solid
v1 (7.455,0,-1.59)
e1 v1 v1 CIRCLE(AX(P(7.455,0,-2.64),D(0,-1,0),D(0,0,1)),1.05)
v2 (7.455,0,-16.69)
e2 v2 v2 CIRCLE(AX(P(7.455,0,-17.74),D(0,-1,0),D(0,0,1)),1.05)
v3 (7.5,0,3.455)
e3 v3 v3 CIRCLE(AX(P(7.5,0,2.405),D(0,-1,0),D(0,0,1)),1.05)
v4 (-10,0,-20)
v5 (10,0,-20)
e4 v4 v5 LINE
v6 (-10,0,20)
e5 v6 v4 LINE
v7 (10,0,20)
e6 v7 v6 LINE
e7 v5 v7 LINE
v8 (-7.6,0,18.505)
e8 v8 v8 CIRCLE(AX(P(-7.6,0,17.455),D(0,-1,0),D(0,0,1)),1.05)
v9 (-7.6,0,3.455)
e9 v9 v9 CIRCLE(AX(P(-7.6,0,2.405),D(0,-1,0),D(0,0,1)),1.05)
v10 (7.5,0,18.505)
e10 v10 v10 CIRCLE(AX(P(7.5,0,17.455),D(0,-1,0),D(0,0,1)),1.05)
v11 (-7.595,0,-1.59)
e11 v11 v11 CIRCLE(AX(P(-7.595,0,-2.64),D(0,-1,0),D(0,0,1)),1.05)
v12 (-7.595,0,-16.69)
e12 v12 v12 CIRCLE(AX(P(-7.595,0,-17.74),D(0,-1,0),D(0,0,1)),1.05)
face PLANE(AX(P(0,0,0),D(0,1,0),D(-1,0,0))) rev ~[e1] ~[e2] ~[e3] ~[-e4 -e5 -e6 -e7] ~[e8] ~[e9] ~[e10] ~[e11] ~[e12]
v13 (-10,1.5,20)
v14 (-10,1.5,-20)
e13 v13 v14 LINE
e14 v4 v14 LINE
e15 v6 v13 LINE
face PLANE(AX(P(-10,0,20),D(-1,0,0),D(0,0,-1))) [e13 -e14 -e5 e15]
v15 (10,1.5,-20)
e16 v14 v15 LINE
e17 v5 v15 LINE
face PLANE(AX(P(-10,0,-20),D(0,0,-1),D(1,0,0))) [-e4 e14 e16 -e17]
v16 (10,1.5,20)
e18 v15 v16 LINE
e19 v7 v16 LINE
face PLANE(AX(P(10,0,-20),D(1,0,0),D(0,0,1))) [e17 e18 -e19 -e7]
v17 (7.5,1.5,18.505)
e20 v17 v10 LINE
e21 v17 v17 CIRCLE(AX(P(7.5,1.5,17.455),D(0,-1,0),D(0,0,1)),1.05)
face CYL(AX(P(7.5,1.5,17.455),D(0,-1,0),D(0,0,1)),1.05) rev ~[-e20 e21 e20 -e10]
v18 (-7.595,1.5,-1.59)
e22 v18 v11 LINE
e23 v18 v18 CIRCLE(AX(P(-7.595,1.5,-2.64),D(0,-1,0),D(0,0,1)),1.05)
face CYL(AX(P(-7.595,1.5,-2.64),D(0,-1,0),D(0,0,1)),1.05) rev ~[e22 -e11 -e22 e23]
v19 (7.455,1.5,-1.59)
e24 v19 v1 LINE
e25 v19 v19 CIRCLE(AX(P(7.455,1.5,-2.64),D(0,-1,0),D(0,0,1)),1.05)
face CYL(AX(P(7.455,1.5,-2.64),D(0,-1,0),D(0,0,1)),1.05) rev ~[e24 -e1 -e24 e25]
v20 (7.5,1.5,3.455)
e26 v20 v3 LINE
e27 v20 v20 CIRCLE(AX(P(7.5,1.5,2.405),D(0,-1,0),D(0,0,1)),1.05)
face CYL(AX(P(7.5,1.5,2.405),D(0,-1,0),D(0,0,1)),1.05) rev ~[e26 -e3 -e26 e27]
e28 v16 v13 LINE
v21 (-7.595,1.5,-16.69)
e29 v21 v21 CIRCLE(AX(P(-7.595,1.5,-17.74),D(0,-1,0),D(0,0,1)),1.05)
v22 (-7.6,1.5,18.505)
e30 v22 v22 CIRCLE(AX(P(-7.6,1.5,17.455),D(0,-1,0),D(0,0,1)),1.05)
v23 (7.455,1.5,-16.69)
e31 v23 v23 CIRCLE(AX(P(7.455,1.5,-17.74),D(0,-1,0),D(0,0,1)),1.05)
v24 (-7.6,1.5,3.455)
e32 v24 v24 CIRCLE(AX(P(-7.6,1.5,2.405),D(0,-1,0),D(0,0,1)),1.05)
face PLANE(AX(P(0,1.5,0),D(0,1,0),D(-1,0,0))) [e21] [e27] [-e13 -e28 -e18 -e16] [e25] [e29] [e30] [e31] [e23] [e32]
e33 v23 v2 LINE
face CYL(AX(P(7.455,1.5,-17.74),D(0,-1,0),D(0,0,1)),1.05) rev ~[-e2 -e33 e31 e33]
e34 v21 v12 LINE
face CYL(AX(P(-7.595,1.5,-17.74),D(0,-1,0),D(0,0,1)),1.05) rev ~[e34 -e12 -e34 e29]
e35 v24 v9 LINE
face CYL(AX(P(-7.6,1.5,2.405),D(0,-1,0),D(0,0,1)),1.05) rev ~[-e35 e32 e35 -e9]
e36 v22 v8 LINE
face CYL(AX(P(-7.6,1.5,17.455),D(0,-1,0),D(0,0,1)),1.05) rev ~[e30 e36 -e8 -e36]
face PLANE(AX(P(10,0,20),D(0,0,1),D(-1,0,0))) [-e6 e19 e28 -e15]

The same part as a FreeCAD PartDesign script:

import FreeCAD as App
import Part
import Sketcher
Q = App.Units.Quantity


def add_polygon(sketch, points):
    """Adds a closed chain of lines whose ends are joined by coincident constraints."""
    first, n = sketch.GeometryCount, len(points)
    for a, b in zip(points, points[1:] + points[:1]):
        sketch.addGeometry(Part.LineSegment(App.Vector(*a, 0), App.Vector(*b, 0)), False)
    for i in range(n):
        sketch.addConstraint(Sketcher.Constraint("Coincident", first + i, 2, first + (i + 1) % n, 1))

doc = App.newDocument("Part")
body = doc.addObject("PartDesign::Body", "Body")

# Sketch on XZ plane
sketch1 = body.newObject("Sketcher::SketchObject", "Sketch")
sketch1.AttachmentSupport = (doc.getObject("XZ_Plane"), [""])
sketch1.MapMode = "FlatFace"
add_polygon(sketch1, [(-10, 20), (10, 20), (10, -20), (-10, -20)])  # lines 0-3
sketch1.addConstraint([
    Sketcher.Constraint("Horizontal", 0),
    Sketcher.Constraint("Vertical", 1),
    Sketcher.Constraint("Horizontal", 2),
    Sketcher.Constraint("Vertical", 3),
    Sketcher.Constraint("Symmetric", 0, 2, 2, 2, -1, 1),
    Sketcher.Constraint("DistanceX", 0, 1, 0, 2, Q("20 mm")),
    Sketcher.Constraint("DistanceY", 1, 2, 1, 1, Q("40 mm")),
])
pad1 = body.newObject("PartDesign::Pad", "Pad")
pad1.Profile = sketch1
pad1.Length = 1.5
pad1.Reversed = True

# Sketch on XZ plane
sketch2 = body.newObject("Sketcher::SketchObject", "Sketch001")
sketch2.AttachmentSupport = (doc.getObject("XZ_Plane"), [""])
sketch2.MapMode = "FlatFace"
sketch2.AttachmentOffset = App.Placement(App.Vector(0, 0, -1.5), App.Rotation())
sketch2.addGeometry([
    Part.Circle(App.Vector(-7.6, -17.7, 0), App.Vector(0, 0, 1), 1.1),
    Part.Circle(App.Vector(7.5, -17.7, 0), App.Vector(0, 0, 1), 1.1),
    Part.Circle(App.Vector(7.5, -2.6, 0), App.Vector(0, 0, 1), 1.1),
    Part.Circle(App.Vector(-7.6, -2.6, 0), App.Vector(0, 0, 1), 1.1),
], False)
sketch2.addConstraint([
    Sketcher.Constraint("Equal", 0, 1),
    Sketcher.Constraint("Equal", 1, 2),
    Sketcher.Constraint("Equal", 2, 3),
    Sketcher.Constraint("Horizontal", 0, 3, 1, 3),
    Sketcher.Constraint("Horizontal", 2, 3, 3, 3),
    Sketcher.Constraint("Vertical", 1, 3, 2, 3),
    Sketcher.Constraint("Vertical", 0, 3, 3, 3),
    Sketcher.Constraint("Diameter", 0, Q("2.1 mm")),
    Sketcher.Constraint("DistanceY", 1, 3, 2, 3, Q("15.1 mm")),
    Sketcher.Constraint("DistanceY", 0, 3, -1, 1, Q("17.74 mm")),
    Sketcher.Constraint("DistanceX", 0, 3, 1, 3, Q("15.05 mm")),
    Sketcher.Constraint("DistanceX", 0, 3, -1, 1, Q("7.595 mm")),
])
doc.recompute()
hole = body.newObject("PartDesign::Hole", "Hole")
hole.Profile = sketch2
hole.ThreadType = "None"
hole.Diameter = 2.1
hole.DepthType = "Dimension"
hole.Depth = 1.5
hole.DrillPoint = "Flat"
hole.Reversed = True

# Sketch on XZ plane
sketch3 = body.newObject("Sketcher::SketchObject", "Sketch002")
sketch3.AttachmentSupport = (doc.getObject("XZ_Plane"), [""])
sketch3.MapMode = "FlatFace"
sketch3.AttachmentOffset = App.Placement(App.Vector(0, 0, -1.5), App.Rotation())
sketch3.addGeometry([
    Part.Circle(App.Vector(-7.6, 2.4, 0), App.Vector(0, 0, 1), 1.1),
    Part.Circle(App.Vector(7.5, 2.4, 0), App.Vector(0, 0, 1), 1.1),
    Part.Circle(App.Vector(7.5, 17.5, 0), App.Vector(0, 0, 1), 1.1),
    Part.Circle(App.Vector(-7.6, 17.5, 0), App.Vector(0, 0, 1), 1.1),
], False)
sketch3.addConstraint([
    Sketcher.Constraint("Equal", 0, 1),
    Sketcher.Constraint("Equal", 1, 2),
    Sketcher.Constraint("Equal", 2, 3),
    Sketcher.Constraint("Horizontal", 0, 3, 1, 3),
    Sketcher.Constraint("Horizontal", 2, 3, 3, 3),
    Sketcher.Constraint("Vertical", 1, 3, 2, 3),
    Sketcher.Constraint("Vertical", 0, 3, 3, 3),
    Sketcher.Constraint("Diameter", 0, Q("2.1 mm")),
    Sketcher.Constraint("DistanceX", 0, 3, -1, 1, Q("7.6 mm")),
    Sketcher.Constraint("DistanceX", -1, 1, 1, 3, Q("7.5 mm")),
    Sketcher.Constraint("DistanceY", 1, 3, 2, 3, Q("15.05 mm")),
    Sketcher.Constraint("DistanceY", -1, 1, 0, 3, Q("2.405 mm")),
])
doc.recompute()
hole2 = body.newObject("PartDesign::Hole", "Hole001")
hole2.Profile = sketch3
hole2.ThreadType = "None"
hole2.Diameter = 2.1
hole2.DepthType = "Dimension"
hole2.Depth = 1.5
hole2.DrillPoint = "Flat"
hole2.Reversed = True

doc.recompute()
